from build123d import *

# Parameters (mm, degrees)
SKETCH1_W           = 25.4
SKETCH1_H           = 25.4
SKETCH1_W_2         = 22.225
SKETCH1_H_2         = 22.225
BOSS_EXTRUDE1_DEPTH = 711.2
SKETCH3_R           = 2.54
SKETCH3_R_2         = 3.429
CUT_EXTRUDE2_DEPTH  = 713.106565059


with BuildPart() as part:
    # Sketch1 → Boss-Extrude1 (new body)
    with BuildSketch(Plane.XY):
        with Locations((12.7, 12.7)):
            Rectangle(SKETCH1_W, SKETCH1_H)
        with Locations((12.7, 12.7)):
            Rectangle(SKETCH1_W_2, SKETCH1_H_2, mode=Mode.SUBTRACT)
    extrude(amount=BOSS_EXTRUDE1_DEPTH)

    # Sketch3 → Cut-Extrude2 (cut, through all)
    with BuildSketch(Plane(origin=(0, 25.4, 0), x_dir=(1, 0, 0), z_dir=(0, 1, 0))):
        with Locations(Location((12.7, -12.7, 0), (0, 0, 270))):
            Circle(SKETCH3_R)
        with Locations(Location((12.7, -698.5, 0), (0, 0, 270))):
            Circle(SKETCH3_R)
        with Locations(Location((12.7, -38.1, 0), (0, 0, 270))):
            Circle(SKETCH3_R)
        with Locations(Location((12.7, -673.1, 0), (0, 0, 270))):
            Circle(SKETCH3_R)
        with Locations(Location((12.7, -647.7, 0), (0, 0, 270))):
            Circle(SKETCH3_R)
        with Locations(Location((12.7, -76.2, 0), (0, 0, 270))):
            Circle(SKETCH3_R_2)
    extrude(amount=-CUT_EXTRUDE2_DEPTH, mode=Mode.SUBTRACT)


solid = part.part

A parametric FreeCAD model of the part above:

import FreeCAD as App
import Part
import Sketcher
Q = App.Units.Quantity


def add_polygon(sketch, points):
    """Adds a closed chain of lines whose ends are joined by coincident constraints."""
    first, n = sketch.GeometryCount, len(points)
    for a, b in zip(points, points[1:] + points[:1]):
        sketch.addGeometry(Part.LineSegment(App.Vector(*a, 0), App.Vector(*b, 0)), False)
    for i in range(n):
        sketch.addConstraint(Sketcher.Constraint("Coincident", first + i, 2, first + (i + 1) % n, 1))

doc = App.newDocument("Part")
body = doc.addObject("PartDesign::Body", "Body")

# Sketch on XY plane
sketch1 = body.newObject("Sketcher::SketchObject", "Sketch")
sketch1.AttachmentSupport = (doc.getObject("XY_Plane"), [""])
sketch1.MapMode = "FlatFace"
add_polygon(sketch1, [(0, 25), (0, 0), (25, 0), (25, 25)])  # lines 0-3
add_polygon(sketch1, [(24, 2), (2, 2), (2, 24), (24, 24)])  # lines 4-7
sketch1.addConstraint([
    Sketcher.Constraint("Vertical", 0),
    Sketcher.Constraint("Horizontal", 1),
    Sketcher.Constraint("Vertical", 2),
    Sketcher.Constraint("Horizontal", 3),
    Sketcher.Constraint("Horizontal", 4),
    Sketcher.Constraint("Vertical", 5),
    Sketcher.Constraint("Horizontal", 6),
    Sketcher.Constraint("Vertical", 7),
    Sketcher.Constraint("Coincident", 0, 2, -1, 1),
    Sketcher.Constraint("Equal", 3, 0),
    Sketcher.Constraint("Equal", 6, 5),
    Sketcher.Constraint("DistanceX", 1, 1, 1, 2, Q("1 in")),
    Sketcher.Constraint("DistanceX", 4, 2, 4, 1, Q("0.875 in")),
    Sketcher.Constraint("DistanceX", -1, 1, 4, 2, Q("0.0625 in")),
    Sketcher.Constraint("DistanceY", -1, 1, 4, 2, Q("0.0625 in")),
])
pad1 = body.newObject("PartDesign::Pad", "Pad")
pad1.Profile = sketch1
pad1.Length = Q("28 in")

# Sketch on XZ plane
sketch2 = body.newObject("Sketcher::SketchObject", "Sketch001")
sketch2.AttachmentSupport = (doc.getObject("XZ_Plane"), [""])
sketch2.MapMode = "FlatFace"
sketch2.AttachmentOffset = App.Placement(App.Vector(0, 0, -1 * 25.4), App.Rotation())
sketch2.addGeometry([
    Part.Circle(App.Vector(12.7, 12.7, 0), App.Vector(0, 0, 1), 2.5),  # 0
    Part.Circle(App.Vector(12.7, 698.5, 0), App.Vector(0, 0, 1), 2.5),  # 1
    Part.Circle(App.Vector(12.7, 38.1, 0), App.Vector(0, 0, 1), 2.5),  # 2
    Part.Circle(App.Vector(12.7, 673.1, 0), App.Vector(0, 0, 1), 2.5),  # 3
    Part.Circle(App.Vector(12.7, 647.7, 0), App.Vector(0, 0, 1), 2.5),  # 4
    Part.Circle(App.Vector(12.7, 76.2, 0), App.Vector(0, 0, 1), 3.4),  # 5
], False)
sketch2.addConstraint([
    Sketcher.Constraint("Equal", 0, 1),
    Sketcher.Constraint("Equal", 1, 2),
    Sketcher.Constraint("Equal", 2, 3),
    Sketcher.Constraint("Equal", 3, 4),
    Sketcher.Constraint("Vertical", 0, 3, 1, 3),
    Sketcher.Constraint("Vertical", 1, 3, 2, 3),
    Sketcher.Constraint("Vertical", 2, 3, 3, 3),
    Sketcher.Constraint("Vertical", 3, 3, 4, 3),
    Sketcher.Constraint("Vertical", 4, 3, 5, 3),
    Sketcher.Constraint("Diameter", 0, Q("0.2 in")),
    Sketcher.Constraint("Diameter", 5, Q("0.27 in")),
    Sketcher.Constraint("DistanceY", -1, 1, 5, 3, Q("3 in")),
    Sketcher.Constraint("DistanceY", 0, 3, 1, 3, Q("27 in")),
    Sketcher.Constraint("DistanceY", 0, 3, 2, 3, Q("1 in")),
    Sketcher.Constraint("DistanceY", 3, 3, 1, 3, Q("1 in")),
    Sketcher.Constraint("DistanceY", 4, 3, 3, 3, Q("1 in")),
    Sketcher.Constraint("DistanceX", -1, 1, 0, 3, Q("0.5 in")),
    Sketcher.Constraint("DistanceY", -1, 1, 0, 3, Q("0.5 in")),
])
pocket1 = body.newObject("PartDesign::Pocket", "Pocket")
pocket1.Profile = sketch2
pocket1.Type = "ThroughAll"
pocket1.Reversed = True

doc.recompute()
